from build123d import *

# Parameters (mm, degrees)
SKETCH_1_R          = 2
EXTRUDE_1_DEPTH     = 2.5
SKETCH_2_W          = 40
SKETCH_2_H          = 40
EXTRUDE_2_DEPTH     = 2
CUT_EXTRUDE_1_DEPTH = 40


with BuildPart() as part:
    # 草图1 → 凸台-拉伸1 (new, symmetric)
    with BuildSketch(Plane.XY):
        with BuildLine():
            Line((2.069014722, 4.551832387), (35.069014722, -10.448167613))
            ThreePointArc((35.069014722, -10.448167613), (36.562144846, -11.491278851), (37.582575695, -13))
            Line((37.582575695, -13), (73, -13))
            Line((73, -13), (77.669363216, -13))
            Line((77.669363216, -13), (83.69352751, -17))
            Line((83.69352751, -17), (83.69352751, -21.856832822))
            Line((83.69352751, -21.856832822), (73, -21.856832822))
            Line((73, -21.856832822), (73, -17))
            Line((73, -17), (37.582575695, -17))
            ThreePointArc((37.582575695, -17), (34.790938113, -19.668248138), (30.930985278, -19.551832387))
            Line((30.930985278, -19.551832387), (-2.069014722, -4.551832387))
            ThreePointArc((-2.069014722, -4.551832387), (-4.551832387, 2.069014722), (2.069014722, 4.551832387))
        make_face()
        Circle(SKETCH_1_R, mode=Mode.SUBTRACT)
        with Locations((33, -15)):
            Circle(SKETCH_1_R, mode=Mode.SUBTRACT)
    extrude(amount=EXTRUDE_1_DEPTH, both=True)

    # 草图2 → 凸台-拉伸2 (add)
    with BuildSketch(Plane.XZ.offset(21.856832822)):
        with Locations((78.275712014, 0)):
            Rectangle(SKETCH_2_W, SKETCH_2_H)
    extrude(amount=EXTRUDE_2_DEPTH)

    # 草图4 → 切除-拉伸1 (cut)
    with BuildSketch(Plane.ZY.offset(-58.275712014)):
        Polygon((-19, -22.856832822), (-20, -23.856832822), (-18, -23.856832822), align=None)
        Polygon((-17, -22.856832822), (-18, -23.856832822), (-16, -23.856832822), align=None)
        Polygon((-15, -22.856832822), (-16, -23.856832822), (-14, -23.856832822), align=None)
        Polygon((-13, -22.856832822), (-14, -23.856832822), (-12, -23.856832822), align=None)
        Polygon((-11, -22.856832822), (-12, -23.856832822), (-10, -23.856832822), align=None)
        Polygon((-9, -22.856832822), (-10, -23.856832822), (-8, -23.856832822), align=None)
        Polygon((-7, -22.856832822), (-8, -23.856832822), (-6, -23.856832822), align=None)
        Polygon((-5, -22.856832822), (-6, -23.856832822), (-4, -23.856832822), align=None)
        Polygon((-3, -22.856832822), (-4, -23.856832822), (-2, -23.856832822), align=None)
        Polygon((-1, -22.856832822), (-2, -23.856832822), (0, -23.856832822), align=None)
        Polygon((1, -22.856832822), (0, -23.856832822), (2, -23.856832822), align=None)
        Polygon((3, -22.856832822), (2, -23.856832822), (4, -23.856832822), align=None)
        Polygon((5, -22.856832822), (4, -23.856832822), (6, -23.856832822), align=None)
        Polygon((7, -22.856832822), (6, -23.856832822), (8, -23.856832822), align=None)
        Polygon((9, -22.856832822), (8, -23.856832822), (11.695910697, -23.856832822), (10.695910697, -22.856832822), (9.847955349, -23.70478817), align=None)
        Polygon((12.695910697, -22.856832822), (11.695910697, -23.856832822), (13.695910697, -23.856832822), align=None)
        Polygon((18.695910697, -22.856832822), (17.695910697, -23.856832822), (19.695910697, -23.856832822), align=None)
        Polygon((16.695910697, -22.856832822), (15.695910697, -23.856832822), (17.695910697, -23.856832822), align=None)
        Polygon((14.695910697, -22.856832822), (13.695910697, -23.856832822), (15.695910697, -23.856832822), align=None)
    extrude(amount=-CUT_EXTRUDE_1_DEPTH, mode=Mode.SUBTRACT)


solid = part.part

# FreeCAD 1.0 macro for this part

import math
import FreeCAD as App
import Part
import Sketcher


def add_polygon(sketch, points):
    """Adds a closed chain of lines whose ends are joined by coincident constraints."""
    first, n = sketch.GeometryCount, len(points)
    for a, b in zip(points, points[1:] + points[:1]):
        sketch.addGeometry(Part.LineSegment(App.Vector(*a, 0), App.Vector(*b, 0)), False)
    for i in range(n):
        sketch.addConstraint(Sketcher.Constraint("Coincident", first + i, 2, first + (i + 1) % n, 1))

doc = App.newDocument("Part")
params = doc.addObject("Spreadsheet::Sheet", "Params")
for row, (alias, value) in enumerate([
    ("sketch1_diameter", "4 mm"),
    ("sketch1_radius", "5 mm"),
    ("pad1_length", "5 mm"),
    ("sketch2_width", "40 mm"),
    ("pad2_length", "2 mm"),
    ("sketch3_height", "2 mm"),
    ("pocket1_length", "40 mm"),
], start=1):
    params.set(f"A{row}", alias)
    params.set(f"B{row}", "=" + value)
    params.setAlias(f"B{row}", alias)

body = doc.addObject("PartDesign::Body", "Body")

sketch1 = body.newObject("Sketcher::SketchObject", "Sketch")
sketch1.AttachmentSupport = (doc.getObject("XY_Plane"), [""])
sketch1.MapMode = "FlatFace"
sketch1.addGeometry(Part.LineSegment(App.Vector(35.1, -10.4, 0), App.Vector(2.1, 4.6, 0)), False)
sketch1.addGeometry(Part.ArcOfCircle(Part.Circle(App.Vector(0, 0, 0), App.Vector(0, 0, 1), 5), math.radians(66), math.radians(246)), False)
sketch1.addGeometry(Part.LineSegment(App.Vector(-2.1, -4.6, 0), App.Vector(30.9, -19.6, 0)), False)
sketch1.addGeometry(Part.ArcOfCircle(Part.Circle(App.Vector(33, -15, 0), App.Vector(0, 0, 1), 5), math.radians(-114), math.radians(-24)), False)
sketch1.addGeometry(Part.LineSegment(App.Vector(37.6, -17, 0), App.Vector(73, -17, 0)), False)
sketch1.addGeometry(Part.LineSegment(App.Vector(73, -17, 0), App.Vector(73, -21.9, 0)), False)
sketch1.addGeometry(Part.LineSegment(App.Vector(73, -21.9, 0), App.Vector(83.7, -21.9, 0)), False)
sketch1.addGeometry(Part.LineSegment(App.Vector(83.7, -21.9, 0), App.Vector(83.7, -17, 0)), False)
sketch1.addGeometry(Part.LineSegment(App.Vector(83.7, -17, 0), App.Vector(77.7, -13, 0)), False)
sketch1.addGeometry(Part.LineSegment(App.Vector(77.7, -13, 0), App.Vector(37.6, -13, 0)), False)
sketch1.addGeometry(Part.ArcOfCircle(Part.Circle(App.Vector(33, -15, 0), App.Vector(0, 0, 1), 5), math.radians(24), math.radians(66)), False)
sketch1.addGeometry(Part.Circle(App.Vector(33, -15, 0), App.Vector(0, 0, 1), 2), False)
sketch1.addGeometry(Part.Circle(App.Vector(0, 0, 0), App.Vector(0, 0, 1), 2), False)
sketch1.addConstraint(Sketcher.Constraint("Tangent", 0, 2, 1, 1))
sketch1.addConstraint(Sketcher.Constraint("Tangent", 1, 2, 2, 1))
sketch1.addConstraint(Sketcher.Constraint("Tangent", 2, 2, 3, 1))
sketch1.addConstraint(Sketcher.Constraint("Coincident", 3, 2, 4, 1))
sketch1.addConstraint(Sketcher.Constraint("Coincident", 4, 2, 5, 1))
sketch1.addConstraint(Sketcher.Constraint("Coincident", 5, 2, 6, 1))
sketch1.addConstraint(Sketcher.Constraint("Coincident", 6, 2, 7, 1))
sketch1.addConstraint(Sketcher.Constraint("Coincident", 7, 2, 8, 1))
sketch1.addConstraint(Sketcher.Constraint("Coincident", 8, 2, 9, 1))
sketch1.addConstraint(Sketcher.Constraint("Coincident", 9, 2, 10, 1))
sketch1.addConstraint(Sketcher.Constraint("Tangent", 10, 2, 0, 1))
sketch1.addConstraint(Sketcher.Constraint("Horizontal", 4))
sketch1.addConstraint(Sketcher.Constraint("Vertical", 5))
sketch1.addConstraint(Sketcher.Constraint("Horizontal", 6))
sketch1.addConstraint(Sketcher.Constraint("Vertical", 7))
sketch1.addConstraint(Sketcher.Constraint("Horizontal", 9))
sketch1.addConstraint(Sketcher.Constraint("Coincident", 1, 3, -1, 1))
sketch1.addConstraint(Sketcher.Constraint("Coincident", 12, 3, -1, 1))
sketch1.addConstraint(Sketcher.Constraint("Coincident", 10, 3, 3, 3))
sketch1.addConstraint(Sketcher.Constraint("Coincident", 11, 3, 3, 3))
sketch1.addConstraint(Sketcher.Constraint("Equal", 1, 3))
sketch1.addConstraint(Sketcher.Constraint("Equal", 3, 10))
sketch1.addConstraint(Sketcher.Constraint("Equal", 11, 12))
sketch1.addConstraint(Sketcher.Constraint("Horizontal", 4, 2, 7, 2))
sketch1.addConstraint(Sketcher.Constraint("Vertical", 3, 2, 9, 2))
sketch1.addConstraint(Sketcher.Constraint("Diameter", 11, 4.0))
sketch1.addConstraint(Sketcher.Constraint("Radius", 1, 5.0))
sketch1.addConstraint(Sketcher.Constraint("DistanceX", -1, 1, 3, 3, 33.0))
sketch1.addConstraint(Sketcher.Constraint("DistanceY", 3, 3, -1, 1, 15.0))
sketch1.addConstraint(Sketcher.Constraint("DistanceY", 3, 2, -1, 1, 17.0))
sketch1.addConstraint(Sketcher.Constraint("DistanceX", -1, 1, 4, 2, 73.0))
sketch1.addConstraint(Sketcher.Constraint("Distance", 8, 7.231221))
sketch1.addConstraint(Sketcher.Constraint("DistanceX", 6, 1, 6, 2, 10.693528))
sketch1.addConstraint(Sketcher.Constraint("DistanceY", 5, 2, 5, 1, 4.856833))
sketch1.setExpression("Constraints[25]", "Params.sketch1_diameter")
sketch1.setExpression("Constraints[26]", "Params.sketch1_radius")
pad1 = body.newObject("PartDesign::Pad", "Pad")
pad1.Profile = sketch1
pad1.setExpression("Length", "Params.pad1_length")
pad1.Midplane = True

sketch2 = body.newObject("Sketcher::SketchObject", "Sketch001")
sketch2.AttachmentSupport = (doc.getObject("XZ_Plane"), [""])
sketch2.MapMode = "FlatFace"
sketch2.AttachmentOffset = App.Placement(App.Vector(0, 0, 21.856833), App.Rotation())
add_polygon(sketch2, [(58, 20), (58, -20), (98, -20), (98, 20)])
sketch2.addConstraint(Sketcher.Constraint("Vertical", 0))
sketch2.addConstraint(Sketcher.Constraint("Horizontal", 1))
sketch2.addConstraint(Sketcher.Constraint("Vertical", 2))
sketch2.addConstraint(Sketcher.Constraint("Horizontal", 3))
sketch2.addConstraint(Sketcher.Constraint("Equal", 3, 0))
sketch2.addConstraint(Sketcher.Constraint("DistanceX", 1, 1, 1, 2, 40.0))
sketch2.addConstraint(Sketcher.Constraint("DistanceY", 0, 2, -1, 1, 20.0))
sketch2.addConstraint(Sketcher.Constraint("DistanceX", -1, 1, 0, 2, 58.275712))
sketch2.setExpression("Constraints[9]", "Params.sketch2_width")
pad2 = body.newObject("PartDesign::Pad", "Pad001")
pad2.Profile = sketch2
pad2.setExpression("Length", "Params.pad2_length")

sketch3 = body.newObject("Sketcher::SketchObject", "Sketch002")
sketch3.AttachmentSupport = (doc.getObject("YZ_Plane"), [""])
sketch3.MapMode = "FlatFace"
sketch3.AttachmentOffset = App.Placement(App.Vector(0, 0, 58.275712), App.Rotation())
add_polygon(sketch3, [(-22.9, -19), (-23.9, -20), (-23.9, -18)])
add_polygon(sketch3, [(-22.9, -17), (-23.9, -18), (-23.9, -16)])
add_polygon(sketch3, [(-22.9, -15), (-23.9, -16), (-23.9, -14)])
add_polygon(sketch3, [(-22.9, -13), (-23.9, -14), (-23.9, -12)])
add_polygon(sketch3, [(-22.9, -11), (-23.9, -12), (-23.9, -10)])
add_polygon(sketch3, [(-22.9, -9), (-23.9, -10), (-23.9, -8)])
add_polygon(sketch3, [(-22.9, -7), (-23.9, -8), (-23.9, -6)])
add_polygon(sketch3, [(-22.9, -5), (-23.9, -6), (-23.9, -4)])
add_polygon(sketch3, [(-22.9, -3), (-23.9, -4), (-23.9, -2)])
add_polygon(sketch3, [(-22.9, -1), (-23.9, -2), (-23.9, 0)])
add_polygon(sketch3, [(-22.9, 1), (-23.9, 0), (-23.9, 2)])
add_polygon(sketch3, [(-22.9, 3), (-23.9, 2), (-23.9, 4)])
add_polygon(sketch3, [(-22.9, 5), (-23.9, 4), (-23.9, 6)])
add_polygon(sketch3, [(-22.9, 7), (-23.9, 6), (-23.9, 8)])
add_polygon(sketch3, [(-22.9, 9), (-23.9, 8), (-23.9, 11.7), (-22.9, 10.7), (-23.7, 9.8)])
add_polygon(sketch3, [(-22.9, 12.7), (-23.9, 11.7), (-23.9, 13.7)])
add_polygon(sketch3, [(-22.9, 18.7), (-23.9, 17.7), (-23.9, 19.7)])
add_polygon(sketch3, [(-22.9, 16.7), (-23.9, 15.7), (-23.9, 17.7)])
add_polygon(sketch3, [(-22.9, 14.7), (-23.9, 13.7), (-23.9, 15.7)])
sketch3.addConstraint(Sketcher.Constraint("Vertical", 1))
sketch3.addConstraint(Sketcher.Constraint("Vertical", 4))
sketch3.addConstraint(Sketcher.Constraint("Vertical", 7))
sketch3.addConstraint(Sketcher.Constraint("Vertical", 10))
sketch3.addConstraint(Sketcher.Constraint("Vertical", 13))
sketch3.addConstraint(Sketcher.Constraint("Vertical", 16))
sketch3.addConstraint(Sketcher.Constraint("Vertical", 19))
sketch3.addConstraint(Sketcher.Constraint("Vertical", 22))
sketch3.addConstraint(Sketcher.Constraint("Vertical", 25))
sketch3.addConstraint(Sketcher.Constraint("Vertical", 28))
sketch3.addConstraint(Sketcher.Constraint("Vertical", 31))
sketch3.addConstraint(Sketcher.Constraint("Vertical", 34))
sketch3.addConstraint(Sketcher.Constraint("Vertical", 37))
sketch3.addConstraint(Sketcher.Constraint("Vertical", 40))
sketch3.addConstraint(Sketcher.Constraint("Vertical", 43))
sketch3.addConstraint(Sketcher.Constraint("Vertical", 48))
sketch3.addConstraint(Sketcher.Constraint("Vertical", 51))
sketch3.addConstraint(Sketcher.Constraint("Vertical", 54))
sketch3.addConstraint(Sketcher.Constraint("Vertical", 57))
sketch3.addConstraint(Sketcher.Constraint("Coincident", 3, 2, 1, 2))
sketch3.addConstraint(Sketcher.Constraint("Coincident", 6, 2, 4, 2))
sketch3.addConstraint(Sketcher.Constraint("Coincident", 9, 2, 7, 2))
sketch3.addConstraint(Sketcher.Constraint("Coincident", 12, 2, 10, 2))
sketch3.addConstraint(Sketcher.Constraint("Coincident", 15, 2, 13, 2))
sketch3.addConstraint(Sketcher.Constraint("Coincident", 18, 2, 16, 2))
sketch3.addConstraint(Sketcher.Constraint("Coincident", 21, 2, 19, 2))
sketch3.addConstraint(Sketcher.Constraint("Coincident", 24, 2, 22, 2))
sketch3.addConstraint(Sketcher.Constraint("Coincident", 27, 2, 25, 2))
sketch3.addConstraint(Sketcher.Constraint("Coincident", 30, 2, 28, 2))
sketch3.addConstraint(Sketcher.Constraint("Coincident", 33, 2, 31, 2))
sketch3.addConstraint(Sketcher.Constraint("Coincident", 36, 2, 34, 2))
sketch3.addConstraint(Sketcher.Constraint("Coincident", 39, 2, 37, 2))
sketch3.addConstraint(Sketcher.Constraint("Coincident", 42, 2, 40, 2))
sketch3.addConstraint(Sketcher.Constraint("Coincident", 47, 2, 43, 2))
sketch3.addConstraint(Sketcher.Constraint("Coincident", 54, 2, 50, 2))
sketch3.addConstraint(Sketcher.Constraint("Coincident", 56, 2, 48, 2))
sketch3.addConstraint(Sketcher.Constraint("Coincident", 57, 2, 53, 2))
sketch3.addConstraint(Sketcher.Constraint("Symmetric", 29, 2, 32, 2, -1))
sketch3.addConstraint(Sketcher.Constraint("Symmetric", 26, 2, 35, 2, -1))
sketch3.addConstraint(Sketcher.Constraint("Symmetric", 23, 2, 38, 2, -1))
sketch3.addConstraint(Sketcher.Constraint("Symmetric", 20, 2, 41, 2, -1))
sketch3.addConstraint(Sketcher.Constraint("Symmetric", 17, 2, 46, 2, -1))
sketch3.addConstraint(Sketcher.Constraint("PointOnObject", 28, 2, -1))
sketch3.addConstraint(Sketcher.Constraint("Perpendicular", 0, 2))
sketch3.addConstraint(Sketcher.Constraint("Perpendicular", 2, 3))
sketch3.addConstraint(Sketcher.Constraint("Perpendicular", 3, 5))
sketch3.addConstraint(Sketcher.Constraint("Perpendicular", 5, 6))
sketch3.addConstraint(Sketcher.Constraint("Perpendicular", 6, 8))
sketch3.addConstraint(Sketcher.Constraint("Perpendicular", 8, 9))
sketch3.addConstraint(Sketcher.Constraint("Perpendicular", 9, 11))
sketch3.addConstraint(Sketcher.Constraint("Perpendicular", 11, 12))
sketch3.addConstraint(Sketcher.Constraint("Perpendicular", 12, 14))
sketch3.addConstraint(Sketcher.Constraint("Perpendicular", 14, 15))
sketch3.addConstraint(Sketcher.Constraint("Perpendicular", 15, 17))
sketch3.addConstraint(Sketcher.Constraint("Perpendicular", 17, 18))
sketch3.addConstraint(Sketcher.Constraint("Perpendicular", 18, 20))
sketch3.addConstraint(Sketcher.Constraint("Perpendicular", 20, 21))
sketch3.addConstraint(Sketcher.Constraint("Perpendicular", 21, 23))
sketch3.addConstraint(Sketcher.Constraint("Perpendicular", 23, 24))
sketch3.addConstraint(Sketcher.Constraint("Perpendicular", 24, 26))
sketch3.addConstraint(Sketcher.Constraint("Perpendicular", 26, 27))
sketch3.addConstraint(Sketcher.Constraint("Perpendicular", 27, 29))
sketch3.addConstraint(Sketcher.Constraint("Perpendicular", 29, 30))
sketch3.addConstraint(Sketcher.Constraint("Perpendicular", 30, 32))
sketch3.addConstraint(Sketcher.Constraint("Perpendicular", 33, 35))
sketch3.addConstraint(Sketcher.Constraint("Perpendicular", 36, 38))
sketch3.addConstraint(Sketcher.Constraint("Perpendicular", 39, 41))
sketch3.addConstraint(Sketcher.Constraint("Perpendicular", 42, 44))
sketch3.addConstraint(Sketcher.Constraint("Perpendicular", 44, 45))
sketch3.addConstraint(Sketcher.Constraint("Perpendicular", 45, 46))
sketch3.addConstraint(Sketcher.Constraint("Perpendicular", 46, 47))
sketch3.addConstraint(Sketcher.Constraint("Perpendicular", 47, 49))
sketch3.addConstraint(Sketcher.Constraint("Perpendicular", 49, 50))
sketch3.addConstraint(Sketcher.Constraint("Perpendicular", 50, 52))
sketch3.addConstraint(Sketcher.Constraint("Perpendicular", 52, 53))
sketch3.addConstraint(Sketcher.Constraint("Perpendicular", 53, 55))
sketch3.addConstraint(Sketcher.Constraint("Perpendicular", 55, 56))
sketch3.addConstraint(Sketcher.Constraint("Perpendicular", 56, 58))
sketch3.addConstraint(Sketcher.Constraint("Vertical", 2, 2, 5, 2))
sketch3.addConstraint(Sketcher.Constraint("Vertical", 5, 2, 8, 2))
sketch3.addConstraint(Sketcher.Constraint("Vertical", 8, 2, 11, 2))
sketch3.addConstraint(Sketcher.Constraint("Vertical", 11, 2, 14, 2))
sketch3.addConstraint(Sketcher.Constraint("Vertical", 14, 2, 17, 2))
sketch3.addConstraint(Sketcher.Constraint("Vertical", 17, 2, 20, 2))
sketch3.addConstraint(Sketcher.Constraint("Vertical", 20, 2, 23, 2))
sketch3.addConstraint(Sketcher.Constraint("Vertical", 23, 2, 26, 2))
sketch3.addConstraint(Sketcher.Constraint("Vertical", 26, 2, 29, 2))
sketch3.addConstraint(Sketcher.Constraint("Vertical", 41, 2, 44, 2))
sketch3.addConstraint(Sketcher.Constraint("Vertical", 46, 2, 49, 2))
sketch3.addConstraint(Sketcher.Constraint("Vertical", 49, 2, 52, 2))
sketch3.addConstraint(Sketcher.Constraint("Vertical", 52, 2, 55, 2))
sketch3.addConstraint(Sketcher.Constraint("Vertical", 55, 2, 58, 2))
sketch3.addConstraint(Sketcher.Constraint("DistanceY", 1, 1, 1, 2, 2.0))
sketch3.addConstraint(Sketcher.Constraint("DistanceY", 43, 1, 43, 2, 3.695911))
sketch3.addConstraint(Sketcher.Constraint("DistanceX", 45, 2, -1, 1, 23.704788))
sketch3.setExpression("Constraints[151]", "Params.sketch3_height")
pocket1 = body.newObject("PartDesign::Pocket", "Pocket")
pocket1.Profile = sketch3
pocket1.setExpression("Length", "Params.pocket1_length")
pocket1.Reversed = True

doc.recompute()
